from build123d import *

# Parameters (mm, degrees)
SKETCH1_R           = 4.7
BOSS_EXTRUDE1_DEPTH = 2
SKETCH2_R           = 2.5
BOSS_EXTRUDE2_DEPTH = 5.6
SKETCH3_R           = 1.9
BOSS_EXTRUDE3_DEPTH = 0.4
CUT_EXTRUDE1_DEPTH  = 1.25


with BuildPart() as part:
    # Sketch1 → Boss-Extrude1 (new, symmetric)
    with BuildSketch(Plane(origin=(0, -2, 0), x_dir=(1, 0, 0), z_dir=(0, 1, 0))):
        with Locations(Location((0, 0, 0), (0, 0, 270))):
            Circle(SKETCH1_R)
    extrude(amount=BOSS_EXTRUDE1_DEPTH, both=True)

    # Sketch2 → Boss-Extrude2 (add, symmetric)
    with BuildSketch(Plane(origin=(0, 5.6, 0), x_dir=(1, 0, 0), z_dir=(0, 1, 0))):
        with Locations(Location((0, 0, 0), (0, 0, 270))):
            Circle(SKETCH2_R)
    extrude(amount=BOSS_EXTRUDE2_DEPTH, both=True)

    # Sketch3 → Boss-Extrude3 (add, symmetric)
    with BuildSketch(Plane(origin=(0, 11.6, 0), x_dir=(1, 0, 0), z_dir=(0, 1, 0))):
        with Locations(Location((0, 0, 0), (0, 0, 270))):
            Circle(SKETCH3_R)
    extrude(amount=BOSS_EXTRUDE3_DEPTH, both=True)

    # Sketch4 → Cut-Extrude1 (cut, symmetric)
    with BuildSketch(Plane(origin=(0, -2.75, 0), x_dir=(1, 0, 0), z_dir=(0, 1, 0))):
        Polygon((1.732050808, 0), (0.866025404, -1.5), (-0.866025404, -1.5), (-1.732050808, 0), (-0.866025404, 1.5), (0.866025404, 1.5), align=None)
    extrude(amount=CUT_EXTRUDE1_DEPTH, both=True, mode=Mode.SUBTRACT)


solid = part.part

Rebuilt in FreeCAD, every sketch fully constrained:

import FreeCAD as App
import Part
import Sketcher

V = App.Vector
Q = App.Units.Quantity


def add_polygon(sketch, points):
    """Adds a closed chain of lines whose ends are joined by coincident constraints."""
    first, n = sketch.GeometryCount, len(points)
    for a, b in zip(points, points[1:] + points[:1]):
        sketch.addGeometry(Part.LineSegment(App.Vector(*a, 0), App.Vector(*b, 0)), False)
    for i in range(n):
        sketch.addConstraint(Sketcher.Constraint("Coincident", first + i, 2, first + (i + 1) % n, 1))

doc = App.newDocument("Part")
body = doc.addObject("PartDesign::Body", "Body")

# Sketch on XZ plane
sketch1 = body.newObject("Sketcher::SketchObject", "Sketch")
sketch1.AttachmentSupport = (doc.getObject("XZ_Plane"), [""])
sketch1.MapMode = "FlatFace"
sketch1.AttachmentOffset = App.Placement(V(0, 0, 2), App.Rotation())
sketch1.addGeometry(Part.Circle(V(0, 0, 0), V(0, 0, 1), 4.7), False)
sketch1.addConstraint([
    Sketcher.Constraint("Coincident", 0, 3, -1, 1),
    Sketcher.Constraint("Diameter", 0, 9.4),
])
pad1 = body.newObject("PartDesign::Pad", "Pad")
pad1.Profile = sketch1
pad1.Length = 4
pad1.Midplane = True

# Sketch on XZ plane
sketch2 = body.newObject("Sketcher::SketchObject", "Sketch001")
sketch2.AttachmentSupport = (doc.getObject("XZ_Plane"), [""])
sketch2.MapMode = "FlatFace"
sketch2.AttachmentOffset = App.Placement(V(0, 0, -5.6), App.Rotation())
sketch2.addGeometry(Part.Circle(V(0, 0, 0), V(0, 0, 1), 2.5), False)
sketch2.addConstraint([
    Sketcher.Constraint("Coincident", 0, 3, -1, 1),
    Sketcher.Constraint("Diameter", 0, 5.0),
])
pad2 = body.newObject("PartDesign::Pad", "Pad001")
pad2.Profile = sketch2
pad2.Length = 11.2
pad2.Midplane = True

# Sketch on XZ plane
sketch3 = body.newObject("Sketcher::SketchObject", "Sketch002")
sketch3.AttachmentSupport = (doc.getObject("XZ_Plane"), [""])
sketch3.MapMode = "FlatFace"
sketch3.AttachmentOffset = App.Placement(V(0, 0, -11.6), App.Rotation())
sketch3.addGeometry(Part.Circle(V(0, 0, 0), V(0, 0, 1), 1.9), False)
sketch3.addConstraint([
    Sketcher.Constraint("Coincident", 0, 3, -1, 1),
    Sketcher.Constraint("Diameter", 0, 3.8),
])
pad3 = body.newObject("PartDesign::Pad", "Pad002")
pad3.Profile = sketch3
pad3.Length = 0.8
pad3.Midplane = True

# Sketch on XZ plane
sketch4 = body.newObject("Sketcher::SketchObject", "Sketch003")
sketch4.AttachmentSupport = (doc.getObject("XZ_Plane"), [""])
sketch4.MapMode = "FlatFace"
sketch4.AttachmentOffset = App.Placement(V(0, 0, 2.75), App.Rotation())
add_polygon(sketch4, [(0.9, 1.5), (1.7, 0), (0.9, -1.5), (-0.9, -1.5), (-1.7, 0), (-0.9, 1.5)])  # lines 0-5
sketch4.addConstraint([
    Sketcher.Constraint("Horizontal", 2),
    Sketcher.Constraint("Horizontal", 5),
    Sketcher.Constraint("Symmetric", 0, 2, 3, 2, -1, 1),
    Sketcher.Constraint("Symmetric", 1, 2, 4, 2, -1, 1),
    Sketcher.Constraint("PointOnObject", 0, 2, -1),
    Sketcher.Constraint("Parallel", 0, 3),
    Sketcher.Constraint("Vertical", 2, 2, 4, 2),
    Sketcher.Constraint("Angle", 0, Q("-60 deg")),
    Sketcher.Constraint("DistanceY", 2, 2, 4, 2, 3.0),
    Sketcher.Constraint("DistanceX", 2, 2, 2, 1, 1.732051),
])
pocket1 = body.newObject("PartDesign::Pocket", "Pocket")
pocket1.Profile = sketch4
pocket1.Length = 2.5
pocket1.Midplane = True

doc.recompute()
